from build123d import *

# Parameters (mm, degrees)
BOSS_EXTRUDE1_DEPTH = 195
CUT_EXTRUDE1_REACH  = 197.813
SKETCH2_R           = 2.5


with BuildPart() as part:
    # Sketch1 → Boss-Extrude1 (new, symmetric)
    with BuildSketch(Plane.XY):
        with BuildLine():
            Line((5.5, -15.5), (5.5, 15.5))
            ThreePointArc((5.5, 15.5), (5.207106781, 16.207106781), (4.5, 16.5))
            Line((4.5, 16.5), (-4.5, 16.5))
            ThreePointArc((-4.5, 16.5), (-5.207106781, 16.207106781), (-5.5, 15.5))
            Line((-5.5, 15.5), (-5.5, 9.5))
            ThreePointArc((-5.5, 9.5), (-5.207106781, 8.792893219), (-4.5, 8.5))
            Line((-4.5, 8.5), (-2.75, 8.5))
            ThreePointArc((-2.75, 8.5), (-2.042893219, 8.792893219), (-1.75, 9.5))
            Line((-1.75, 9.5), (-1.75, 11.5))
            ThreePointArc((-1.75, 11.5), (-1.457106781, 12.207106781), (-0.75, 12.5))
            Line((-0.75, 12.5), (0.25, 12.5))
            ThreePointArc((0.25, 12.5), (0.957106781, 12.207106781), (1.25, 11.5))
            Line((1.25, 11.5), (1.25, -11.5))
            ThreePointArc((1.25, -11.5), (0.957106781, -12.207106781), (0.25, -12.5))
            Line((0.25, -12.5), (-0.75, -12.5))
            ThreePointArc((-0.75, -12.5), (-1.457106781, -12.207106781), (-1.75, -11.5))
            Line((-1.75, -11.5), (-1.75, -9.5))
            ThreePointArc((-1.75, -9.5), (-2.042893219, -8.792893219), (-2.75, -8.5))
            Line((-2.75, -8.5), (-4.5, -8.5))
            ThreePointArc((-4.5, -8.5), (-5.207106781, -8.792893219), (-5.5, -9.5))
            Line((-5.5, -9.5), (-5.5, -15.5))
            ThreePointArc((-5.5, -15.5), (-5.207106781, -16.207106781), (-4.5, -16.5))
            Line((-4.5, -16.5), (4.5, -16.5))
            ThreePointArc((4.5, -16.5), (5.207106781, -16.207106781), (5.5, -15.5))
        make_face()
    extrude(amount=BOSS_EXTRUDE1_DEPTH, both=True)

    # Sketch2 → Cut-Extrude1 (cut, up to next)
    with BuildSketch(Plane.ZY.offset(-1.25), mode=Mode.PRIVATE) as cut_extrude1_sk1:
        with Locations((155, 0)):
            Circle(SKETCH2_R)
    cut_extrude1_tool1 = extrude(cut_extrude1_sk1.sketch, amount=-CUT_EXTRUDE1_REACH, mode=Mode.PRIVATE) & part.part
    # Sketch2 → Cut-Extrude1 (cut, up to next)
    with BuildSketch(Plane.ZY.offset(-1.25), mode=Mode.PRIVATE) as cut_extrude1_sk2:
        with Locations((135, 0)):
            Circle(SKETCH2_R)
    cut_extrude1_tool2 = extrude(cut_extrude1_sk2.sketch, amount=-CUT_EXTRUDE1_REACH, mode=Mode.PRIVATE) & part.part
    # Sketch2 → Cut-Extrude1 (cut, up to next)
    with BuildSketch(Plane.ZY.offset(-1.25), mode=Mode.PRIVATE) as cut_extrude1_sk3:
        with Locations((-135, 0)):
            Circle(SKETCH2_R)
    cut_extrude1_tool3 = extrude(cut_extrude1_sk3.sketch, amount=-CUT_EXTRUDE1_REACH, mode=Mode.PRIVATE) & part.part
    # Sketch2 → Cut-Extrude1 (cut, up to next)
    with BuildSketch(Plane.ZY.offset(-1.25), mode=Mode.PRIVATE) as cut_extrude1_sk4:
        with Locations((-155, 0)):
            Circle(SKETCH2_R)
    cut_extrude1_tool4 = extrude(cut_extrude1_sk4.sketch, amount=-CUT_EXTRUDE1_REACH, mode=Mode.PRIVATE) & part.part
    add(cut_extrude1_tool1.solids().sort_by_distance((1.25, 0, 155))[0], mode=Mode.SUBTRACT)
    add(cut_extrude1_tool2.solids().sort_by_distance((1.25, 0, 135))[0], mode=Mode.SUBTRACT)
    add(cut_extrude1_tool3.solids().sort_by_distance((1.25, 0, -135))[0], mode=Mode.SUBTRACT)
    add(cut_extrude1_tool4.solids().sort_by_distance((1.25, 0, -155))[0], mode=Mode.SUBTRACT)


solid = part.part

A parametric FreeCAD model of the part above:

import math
import FreeCAD as App
import Part
import Sketcher

V = App.Vector
Q = App.Units.Quantity

doc = App.newDocument("Part")
body = doc.addObject("PartDesign::Body", "Body")

# Sketch on XY plane
sketch1 = doc.addObject("Sketcher::SketchObject", "Sketch")
body.addObject(sketch1)
sketch1.AttachmentSupport = (doc.XY_Plane, [""])
sketch1.MapMode = "FlatFace"
sketch1.addGeometry([
    Part.LineSegment(V(5.5, -15.5, 0), V(5.5, 15.5, 0)),  # 0
    Part.ArcOfCircle(Part.Circle(V(4.5, 15.5, 0), V(0, 0, 1), 1), math.radians(0), math.radians(90)),  # 1
    Part.LineSegment(V(4.5, 16.5, 0), V(-4.5, 16.5, 0)),  # 2
    Part.ArcOfCircle(Part.Circle(V(-4.5, 15.5, 0), V(0, 0, 1), 1), math.radians(90), math.radians(180)),  # 3
    Part.LineSegment(V(-5.5, 15.5, 0), V(-5.5, 9.5, 0)),  # 4
    Part.ArcOfCircle(Part.Circle(V(-4.5, 9.5, 0), V(0, 0, 1), 1), math.radians(-180), math.radians(-90)),  # 5
    Part.LineSegment(V(-4.5, 8.5, 0), V(-2.8, 8.5, 0)),  # 6
    Part.ArcOfCircle(Part.Circle(V(-2.8, 9.5, 0), V(0, 0, 1), 1), math.radians(-90), math.radians(0)),  # 7
    Part.LineSegment(V(-1.8, 9.5, 0), V(-1.8, 11.5, 0)),  # 8
    Part.ArcOfCircle(Part.Circle(V(-0.7, 11.5, 0), V(0, 0, 1), 1), math.radians(90), math.radians(180)),  # 9
    Part.LineSegment(V(-0.8, 12.5, 0), V(0.2, 12.5, 0)),  # 10
    Part.ArcOfCircle(Part.Circle(V(0.2, 11.5, 0), V(0, 0, 1), 1), math.radians(0), math.radians(90)),  # 11
    Part.LineSegment(V(1.2, 11.5, 0), V(1.2, -11.5, 0)),  # 12
    Part.ArcOfCircle(Part.Circle(V(0.2, -11.5, 0), V(0, 0, 1), 1), math.radians(-90), math.radians(0)),  # 13
    Part.LineSegment(V(0.2, -12.5, 0), V(-0.8, -12.5, 0)),  # 14
    Part.ArcOfCircle(Part.Circle(V(-0.7, -11.5, 0), V(0, 0, 1), 1), math.radians(-180), math.radians(-90)),  # 15
    Part.LineSegment(V(-1.8, -11.5, 0), V(-1.8, -9.5, 0)),  # 16
    Part.ArcOfCircle(Part.Circle(V(-2.8, -9.5, 0), V(0, 0, 1), 1), math.radians(0), math.radians(90)),  # 17
    Part.LineSegment(V(-2.8, -8.5, 0), V(-4.5, -8.5, 0)),  # 18
    Part.ArcOfCircle(Part.Circle(V(-4.5, -9.5, 0), V(0, 0, 1), 1), math.radians(90), math.radians(180)),  # 19
    Part.LineSegment(V(-5.5, -9.5, 0), V(-5.5, -15.5, 0)),  # 20
    Part.ArcOfCircle(Part.Circle(V(-4.5, -15.5, 0), V(0, 0, 1), 1), math.radians(-180), math.radians(-90)),  # 21
    Part.LineSegment(V(-4.5, -16.5, 0), V(4.5, -16.5, 0)),  # 22
    Part.ArcOfCircle(Part.Circle(V(4.5, -15.5, 0), V(0, 0, 1), 1), math.radians(-90), math.radians(0)),  # 23
], False)
sketch1.addConstraint([
    Sketcher.Constraint("Tangent", 0, 2, 1, 1),
    Sketcher.Constraint("Tangent", 1, 2, 2, 1),
    Sketcher.Constraint("Tangent", 2, 2, 3, 1),
    Sketcher.Constraint("Tangent", 3, 2, 4, 1),
    Sketcher.Constraint("Tangent", 4, 2, 5, 1),
    Sketcher.Constraint("Tangent", 5, 2, 6, 1),
    Sketcher.Constraint("Tangent", 6, 2, 7, 1),
    Sketcher.Constraint("Tangent", 7, 2, 8, 1),
    Sketcher.Constraint("Tangent", 8, 2, 9, 2),
    Sketcher.Constraint("Tangent", 9, 1, 10, 1),
    Sketcher.Constraint("Tangent", 10, 2, 11, 2),
    Sketcher.Constraint("Tangent", 11, 1, 12, 1),
    Sketcher.Constraint("Tangent", 12, 2, 13, 2),
    Sketcher.Constraint("Tangent", 13, 1, 14, 1),
    Sketcher.Constraint("Tangent", 14, 2, 15, 2),
    Sketcher.Constraint("Tangent", 15, 1, 16, 1),
    Sketcher.Constraint("Tangent", 16, 2, 17, 1),
    Sketcher.Constraint("Tangent", 17, 2, 18, 1),
    Sketcher.Constraint("Tangent", 18, 2, 19, 1),
    Sketcher.Constraint("Tangent", 19, 2, 20, 1),
    Sketcher.Constraint("Tangent", 20, 2, 21, 1),
    Sketcher.Constraint("Tangent", 21, 2, 22, 1),
    Sketcher.Constraint("Tangent", 22, 2, 23, 1),
    Sketcher.Constraint("Tangent", 23, 2, 0, 1),
    Sketcher.Constraint("Vertical", 0),
    Sketcher.Constraint("Horizontal", 2),
    Sketcher.Constraint("Vertical", 4),
    Sketcher.Constraint("Horizontal", 6),
    Sketcher.Constraint("Vertical", 8),
    Sketcher.Constraint("Horizontal", 10),
    Sketcher.Constraint("Vertical", 12),
    Sketcher.Constraint("Horizontal", 14),
    Sketcher.Constraint("Vertical", 16),
    Sketcher.Constraint("Horizontal", 18),
    Sketcher.Constraint("Vertical", 20),
    Sketcher.Constraint("Horizontal", 22),
    Sketcher.Constraint("Equal", 1, 3),
    Sketcher.Constraint("Equal", 3, 5),
    Sketcher.Constraint("Equal", 5, 7),
    Sketcher.Constraint("Equal", 7, 9),
    Sketcher.Constraint("Equal", 9, 11),
    Sketcher.Constraint("Equal", 11, 13),
    Sketcher.Constraint("Equal", 13, 15),
    Sketcher.Constraint("Equal", 15, 17),
    Sketcher.Constraint("Equal", 17, 19),
    Sketcher.Constraint("Equal", 19, 21),
    Sketcher.Constraint("Equal", 21, 23),
    Sketcher.Constraint("Symmetric", 1, 3, 21, 3, -1, 1),
    Sketcher.Constraint("Symmetric", 9, 3, 15, 3, -1),
    Sketcher.Constraint("Symmetric", 5, 3, 19, 3, -1),
    Sketcher.Constraint("Radius", 1, Q("1 mm")),
    Sketcher.Constraint("DistanceX", 2, 2, 2, 1, Q("9 mm")),
    Sketcher.Constraint("DistanceX", 10, 1, 10, 2, Q("1 mm")),
    Sketcher.Constraint("DistanceY", 0, 1, 0, 2, Q("31 mm")),
    Sketcher.Constraint("DistanceY", 4, 2, 4, 1, Q("6 mm")),
    Sketcher.Constraint("DistanceY", 8, 1, 8, 2, Q("2 mm")),
    Sketcher.Constraint("DistanceX", 6, 1, 6, 2, Q("1.75 mm")),
])
pad1 = doc.addObject("PartDesign::Pad", "Pad")
body.addObject(pad1)
pad1.Profile = sketch1
pad1.Length = 390
pad1.Midplane = True

# Sketch on YZ plane
sketch2 = doc.addObject("Sketcher::SketchObject", "Sketch001")
body.addObject(sketch2)
sketch2.AttachmentSupport = (doc.YZ_Plane, [""])
sketch2.MapMode = "FlatFace"
sketch2.AttachmentOffset = App.Placement(V(0, 0, 1.25), App.Rotation())
sketch2.addGeometry(Part.Circle(V(0, 155, 0), V(0, 0, 1), 2.5), False)
sketch2.addConstraint([
    Sketcher.Constraint("PointOnObject", 0, 3, -2),
    Sketcher.Constraint("Diameter", 0, Q("5 mm")),
    Sketcher.Constraint("DistanceY", -1, 1, 0, 3, Q("155 mm")),
])
pocket1 = doc.addObject("PartDesign::Pocket", "Pocket")
body.addObject(pocket1)
pocket1.Profile = sketch2
pocket1.Type = "UpToFirst"
pocket1.Reversed = True

# Sketch on YZ plane
sketch3 = doc.addObject("Sketcher::SketchObject", "Sketch002")
body.addObject(sketch3)
sketch3.AttachmentSupport = (doc.YZ_Plane, [""])
sketch3.MapMode = "FlatFace"
sketch3.AttachmentOffset = App.Placement(V(0, 0, 1.25), App.Rotation())
sketch3.addGeometry(Part.Circle(V(0, 135, 0), V(0, 0, 1), 2.5), False)
sketch3.addConstraint([
    Sketcher.Constraint("PointOnObject", 0, 3, -2),
    Sketcher.Constraint("Diameter", 0, Q("5 mm")),
    Sketcher.Constraint("DistanceY", -1, 1, 0, 3, Q("135 mm")),
])
pocket2 = doc.addObject("PartDesign::Pocket", "Pocket001")
body.addObject(pocket2)
pocket2.Profile = sketch3
pocket2.Type = "UpToFirst"
pocket2.Reversed = True

# Sketch on YZ plane
sketch4 = doc.addObject("Sketcher::SketchObject", "Sketch003")
body.addObject(sketch4)
sketch4.AttachmentSupport = (doc.YZ_Plane, [""])
sketch4.MapMode = "FlatFace"
sketch4.AttachmentOffset = App.Placement(V(0, 0, 1.25), App.Rotation())
sketch4.addGeometry(Part.Circle(V(0, -135, 0), V(0, 0, 1), 2.5), False)
sketch4.addConstraint([
    Sketcher.Constraint("PointOnObject", 0, 3, -2),
    Sketcher.Constraint("Diameter", 0, Q("5 mm")),
    Sketcher.Constraint("DistanceY", 0, 3, -1, 1, Q("135 mm")),
])
pocket3 = doc.addObject("PartDesign::Pocket", "Pocket002")
body.addObject(pocket3)
pocket3.Profile = sketch4
pocket3.Type = "UpToFirst"
pocket3.Reversed = True

# Sketch on YZ plane
sketch5 = doc.addObject("Sketcher::SketchObject", "Sketch004")
body.addObject(sketch5)
sketch5.AttachmentSupport = (doc.YZ_Plane, [""])
sketch5.MapMode = "FlatFace"
sketch5.AttachmentOffset = App.Placement(V(0, 0, 1.25), App.Rotation())
sketch5.addGeometry(Part.Circle(V(0, -155, 0), V(0, 0, 1), 2.5), False)
sketch5.addConstraint([
    Sketcher.Constraint("PointOnObject", 0, 3, -2),
    Sketcher.Constraint("Diameter", 0, Q("5 mm")),
    Sketcher.Constraint("DistanceY", 0, 3, -1, 1, Q("155 mm")),
])
pocket4 = doc.addObject("PartDesign::Pocket", "Pocket003")
body.addObject(pocket4)
pocket4.Profile = sketch5
pocket4.Type = "UpToFirst"
pocket4.Reversed = True

doc.recompute()
